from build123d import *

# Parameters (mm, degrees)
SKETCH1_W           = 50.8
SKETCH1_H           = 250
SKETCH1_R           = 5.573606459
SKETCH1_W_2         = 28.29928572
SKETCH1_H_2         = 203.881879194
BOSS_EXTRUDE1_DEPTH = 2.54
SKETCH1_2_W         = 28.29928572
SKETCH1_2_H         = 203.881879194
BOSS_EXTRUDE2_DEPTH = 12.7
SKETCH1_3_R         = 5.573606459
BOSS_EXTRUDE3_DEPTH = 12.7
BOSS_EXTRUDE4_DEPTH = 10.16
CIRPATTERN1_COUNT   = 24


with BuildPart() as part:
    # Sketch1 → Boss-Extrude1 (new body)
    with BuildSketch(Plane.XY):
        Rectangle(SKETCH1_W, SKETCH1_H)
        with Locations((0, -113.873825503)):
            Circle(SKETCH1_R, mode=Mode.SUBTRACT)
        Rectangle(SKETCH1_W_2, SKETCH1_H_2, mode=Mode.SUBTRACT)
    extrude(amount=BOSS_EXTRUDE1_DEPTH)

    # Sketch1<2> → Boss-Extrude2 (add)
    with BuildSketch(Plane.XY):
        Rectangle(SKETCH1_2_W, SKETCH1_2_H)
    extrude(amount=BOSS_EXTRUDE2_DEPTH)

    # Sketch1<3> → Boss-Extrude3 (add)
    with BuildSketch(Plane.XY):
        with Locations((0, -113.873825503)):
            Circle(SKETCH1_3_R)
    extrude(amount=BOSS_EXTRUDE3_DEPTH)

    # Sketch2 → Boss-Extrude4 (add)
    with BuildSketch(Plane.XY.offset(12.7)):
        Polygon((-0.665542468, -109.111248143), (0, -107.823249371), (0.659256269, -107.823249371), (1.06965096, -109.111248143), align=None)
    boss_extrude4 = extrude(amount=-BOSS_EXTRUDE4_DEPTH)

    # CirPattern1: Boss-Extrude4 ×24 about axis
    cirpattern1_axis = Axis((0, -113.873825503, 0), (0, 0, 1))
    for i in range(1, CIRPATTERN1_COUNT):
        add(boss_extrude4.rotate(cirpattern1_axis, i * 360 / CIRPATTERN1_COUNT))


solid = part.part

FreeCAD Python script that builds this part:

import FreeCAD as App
import Part
import Sketcher

V = App.Vector
Q = App.Units.Quantity


def add_polygon(sketch, points):
    """Adds a closed chain of lines whose ends are joined by coincident constraints."""
    first, n = sketch.GeometryCount, len(points)
    for a, b in zip(points, points[1:] + points[:1]):
        sketch.addGeometry(Part.LineSegment(App.Vector(*a, 0), App.Vector(*b, 0)), False)
    for i in range(n):
        sketch.addConstraint(Sketcher.Constraint("Coincident", first + i, 2, first + (i + 1) % n, 1))

doc = App.newDocument("Part")
body = doc.addObject("PartDesign::Body", "Body")

# Sketch on XY plane
sketch1 = doc.addObject("Sketcher::SketchObject", "Sketch")
body.addObject(sketch1)
sketch1.AttachmentSupport = (doc.XY_Plane, [""])
sketch1.MapMode = "FlatFace"
add_polygon(sketch1, [(-25, 125), (-25, -125), (25, -125), (25, 125)])  # lines 0-3
sketch1.addGeometry(Part.Circle(V(0, -114, 0), V(0, 0, 1), 6), False)  # 4
add_polygon(sketch1, [(14, -102), (-14, -102), (-14, 102), (14, 102)])  # lines 5-8
sketch1.addConstraint([
    Sketcher.Constraint("Vertical", 0),
    Sketcher.Constraint("Horizontal", 1),
    Sketcher.Constraint("Vertical", 2),
    Sketcher.Constraint("Horizontal", 3),
    Sketcher.Constraint("Horizontal", 5),
    Sketcher.Constraint("Vertical", 6),
    Sketcher.Constraint("Horizontal", 7),
    Sketcher.Constraint("Vertical", 8),
    Sketcher.Constraint("Symmetric", 0, 2, 2, 2, -1, 1),
    Sketcher.Constraint("Symmetric", 5, 2, 7, 2, -1, 1),
    Sketcher.Constraint("PointOnObject", 4, 3, -2),
    Sketcher.Constraint("DistanceX", 1, 1, 1, 2, Q("2 in")),
    Sketcher.Constraint("Diameter", 4, Q("11.147213 mm")),
    Sketcher.Constraint("DistanceY", 0, 2, 0, 1, Q("250 mm")),
    Sketcher.Constraint("DistanceY", 6, 1, 6, 2, Q("203.881879 mm")),
    Sketcher.Constraint("DistanceX", 5, 2, 5, 1, Q("28.299286 mm")),
    Sketcher.Constraint("DistanceY", 4, 3, -1, 1, Q("113.873826 mm")),
])
pad1 = doc.addObject("PartDesign::Pad", "Pad")
body.addObject(pad1)
pad1.Profile = sketch1
pad1.Length = Q("0.1 in")

# Sketch on XY plane
sketch2 = doc.addObject("Sketcher::SketchObject", "Sketch001")
body.addObject(sketch2)
sketch2.AttachmentSupport = (doc.XY_Plane, [""])
sketch2.MapMode = "FlatFace"
add_polygon(sketch2, [(-14, 102), (-14, -102), (14, -102), (14, 102)])  # lines 0-3
sketch2.addConstraint([
    Sketcher.Constraint("Vertical", 0),
    Sketcher.Constraint("Horizontal", 1),
    Sketcher.Constraint("Vertical", 2),
    Sketcher.Constraint("Horizontal", 3),
    Sketcher.Constraint("Symmetric", 0, 2, 2, 2, -1, 1),
    Sketcher.Constraint("DistanceY", 0, 2, 0, 1, Q("203.881879 mm")),
    Sketcher.Constraint("DistanceX", 1, 1, 1, 2, Q("28.299286 mm")),
])
pad2 = doc.addObject("PartDesign::Pad", "Pad001")
body.addObject(pad2)
pad2.Profile = sketch2
pad2.Length = Q("0.5 in")

# Sketch on XY plane
sketch3 = doc.addObject("Sketcher::SketchObject", "Sketch002")
body.addObject(sketch3)
sketch3.AttachmentSupport = (doc.XY_Plane, [""])
sketch3.MapMode = "FlatFace"
sketch3.addGeometry(Part.Circle(V(0, -114, 0), V(0, 0, 1), 6), False)
sketch3.addConstraint([
    Sketcher.Constraint("PointOnObject", 0, 3, -2),
    Sketcher.Constraint("Diameter", 0, Q("11.147213 mm")),
    Sketcher.Constraint("DistanceY", 0, 3, -1, 1, Q("113.873826 mm")),
])
pad3 = doc.addObject("PartDesign::Pad", "Pad002")
body.addObject(pad3)
pad3.Profile = sketch3
pad3.Length = Q("0.5 in")

# Sketch on XY plane
sketch4 = doc.addObject("Sketcher::SketchObject", "Sketch003")
body.addObject(sketch4)
sketch4.AttachmentSupport = (doc.XY_Plane, [""])
sketch4.MapMode = "FlatFace"
sketch4.AttachmentOffset = App.Placement(V(0, 0, 0.5 * 25.4), App.Rotation())
add_polygon(sketch4, [(0, -107.8), (-0.7, -109.1), (1.1, -109.1), (0.7, -107.8)])  # lines 0-3
sketch4.addConstraint([
    Sketcher.Constraint("Horizontal", 1),
    Sketcher.Constraint("Horizontal", 3),
    Sketcher.Constraint("PointOnObject", 3, 2, -2),
    Sketcher.Constraint("Distance", 2, Q("1.351801 mm")),
    Sketcher.Constraint("DistanceY", 1, 2, 2, 2, Q("1.287999 mm")),
    Sketcher.Constraint("DistanceX", 0, 2, 2, 2, Q("1.324799 mm")),
    Sketcher.Constraint("Distance", 0, Q("1.449789 mm")),
    Sketcher.Constraint("DistanceY", 0, 2, -1, 1, Q("109.111248 mm")),
])
pad4 = doc.addObject("PartDesign::Pad", "Pad003")
body.addObject(pad4)
pad4.Profile = sketch4
pad4.Length = Q("0.4 in")
pad4.Reversed = True
doc.recompute()

datumline = doc.addObject("PartDesign::Line", "DatumLine")
body.addObject(datumline)
datumline.Placement = App.Placement(V(0, -113.873826, 0), App.Rotation(V(0, 0, 1), V(0, 0, 1)))
polarpattern = doc.addObject("PartDesign::PolarPattern", "PolarPattern")
body.addObject(polarpattern)
polarpattern.Originals = [pad4]
polarpattern.Axis = (datumline, [""])
polarpattern.Angle = 360
polarpattern.Occurrences = 24
body.Tip = polarpattern

doc.recompute()
